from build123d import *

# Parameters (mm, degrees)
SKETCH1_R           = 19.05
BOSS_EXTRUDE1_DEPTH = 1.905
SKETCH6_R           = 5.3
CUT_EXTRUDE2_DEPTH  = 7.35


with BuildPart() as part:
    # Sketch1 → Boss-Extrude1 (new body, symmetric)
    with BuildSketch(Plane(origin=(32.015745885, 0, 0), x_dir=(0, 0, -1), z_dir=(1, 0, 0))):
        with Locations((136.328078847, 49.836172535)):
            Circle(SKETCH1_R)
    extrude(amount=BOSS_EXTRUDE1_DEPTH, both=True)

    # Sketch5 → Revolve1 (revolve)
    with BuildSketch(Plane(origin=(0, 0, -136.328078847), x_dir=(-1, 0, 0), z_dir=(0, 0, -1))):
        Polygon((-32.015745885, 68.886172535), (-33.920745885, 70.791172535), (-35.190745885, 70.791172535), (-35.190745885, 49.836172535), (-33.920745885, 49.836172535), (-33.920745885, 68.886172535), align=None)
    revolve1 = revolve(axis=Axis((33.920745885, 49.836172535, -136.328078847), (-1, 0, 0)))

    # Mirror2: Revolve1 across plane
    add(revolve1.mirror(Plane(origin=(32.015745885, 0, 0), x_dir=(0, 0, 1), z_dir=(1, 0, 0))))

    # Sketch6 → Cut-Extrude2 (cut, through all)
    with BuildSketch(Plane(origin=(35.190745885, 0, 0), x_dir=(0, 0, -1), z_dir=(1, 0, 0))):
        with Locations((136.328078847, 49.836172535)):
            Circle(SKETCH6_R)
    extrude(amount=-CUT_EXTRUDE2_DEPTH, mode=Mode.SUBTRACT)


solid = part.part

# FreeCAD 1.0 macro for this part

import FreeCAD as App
import Part
import Sketcher

V = App.Vector
Q = App.Units.Quantity


def add_polygon(sketch, points):
    """Adds a closed chain of lines whose ends are joined by coincident constraints."""
    first, n = sketch.GeometryCount, len(points)
    for a, b in zip(points, points[1:] + points[:1]):
        sketch.addGeometry(Part.LineSegment(App.Vector(*a, 0), App.Vector(*b, 0)), False)
    for i in range(n):
        sketch.addConstraint(Sketcher.Constraint("Coincident", first + i, 2, first + (i + 1) % n, 1))

doc = App.newDocument("Part")
body = doc.addObject("PartDesign::Body", "Body")

sketch1 = body.newObject("Sketcher::SketchObject", "Sketch")
sketch1.AttachmentSupport = (doc.getObject("YZ_Plane"), [""])
sketch1.MapMode = "FlatFace"
sketch1.AttachmentOffset = App.Placement(V(0, 0, 32.015746), App.Rotation())
sketch1.addGeometry(Part.Circle(V(50, -136, 0), V(0, 0, 1), 19), False)
sketch1.addConstraint(Sketcher.Constraint("Diameter", 0, Q("1.5 in")))
sketch1.addConstraint(Sketcher.Constraint("DistanceY", 0, 3, -1, 1, Q("136.328079 mm")))
sketch1.addConstraint(Sketcher.Constraint("DistanceX", -1, 1, 0, 3, Q("49.836173 mm")))
pad1 = body.newObject("PartDesign::Pad", "Pad")
pad1.Profile = sketch1
pad1.Length = Q("0.15 in")
pad1.Midplane = True

sketch2 = body.newObject("Sketcher::SketchObject", "Sketch001")
sketch2.AttachmentSupport = (doc.getObject("XY_Plane"), [""])
sketch2.MapMode = "FlatFace"
sketch2.AttachmentOffset = App.Placement(V(0, 0, -136.328079), App.Rotation())
add_polygon(sketch2, [(32, 68.9), (33.9, 70.8), (35.2, 70.8), (35.2, 49.8), (33.9, 49.8), (33.9, 68.9)])
sketch2.addGeometry(Part.LineSegment(V(35.2, 49.8, 0), V(32, 49.8, 0)), True)
sketch2.addConstraint(Sketcher.Constraint("Horizontal", 1))
sketch2.addConstraint(Sketcher.Constraint("Vertical", 2))
sketch2.addConstraint(Sketcher.Constraint("Horizontal", 3))
sketch2.addConstraint(Sketcher.Constraint("Vertical", 4))
sketch2.addConstraint(Sketcher.Constraint("Horizontal", 5))
sketch2.addConstraint(Sketcher.Constraint("Horizontal", 6))
sketch2.addConstraint(Sketcher.Constraint("Coincident", 6, 1, 2, 2))
sketch2.addConstraint(Sketcher.Constraint("Vertical", 0, 2, 3, 2))
sketch2.addConstraint(Sketcher.Constraint("Vertical", 5, 2, 6, 2))
sketch2.addConstraint(Sketcher.Constraint("Angle", 0, Q("45 deg")))
sketch2.addConstraint(Sketcher.Constraint("DistanceX", 1, 1, 1, 2, Q("0.05 in")))
sketch2.addConstraint(Sketcher.Constraint("DistanceY", 4, 1, 4, 2, Q("0.75 in")))
sketch2.addConstraint(Sketcher.Constraint("DistanceX", 5, 2, 5, 1, Q("0.075 in")))
sketch2.addConstraint(Sketcher.Constraint("DistanceX", -1, 1, 0, 2, Q("33.920746 mm")))
sketch2.addConstraint(Sketcher.Constraint("DistanceY", -1, 1, 0, 2, Q("70.791173 mm")))
revolution = body.newObject("PartDesign::Revolution", "Revolution")
revolution.Profile = sketch2
revolution.ReferenceAxis = (sketch2, ["Axis0"])
revolution.Angle = 360
doc.recompute()

datumplane = body.newObject("PartDesign::Plane", "DatumPlane")
datumplane.AttachmentSupport = (doc.getObject("YZ_Plane"), [""])
datumplane.MapMode = "FlatFace"
datumplane.AttachmentOffset = App.Placement(V(0, 0, 32.015746), App.Rotation())
mirrored = body.newObject("PartDesign::Mirrored", "Mirrored")
mirrored.Originals = [revolution]
mirrored.MirrorPlane = (datumplane, [""])
body.Tip = mirrored

sketch3 = body.newObject("Sketcher::SketchObject", "Sketch002")
sketch3.AttachmentSupport = (doc.getObject("YZ_Plane"), [""])
sketch3.MapMode = "FlatFace"
sketch3.AttachmentOffset = App.Placement(V(0, 0, 35.190746), App.Rotation())
sketch3.addGeometry(Part.Circle(V(50, -136, 0), V(0, 0, 1), 5), False)
sketch3.addConstraint(Sketcher.Constraint("Diameter", 0, Q("10.6 mm")))
sketch3.addConstraint(Sketcher.Constraint("DistanceY", 0, 3, -1, 1, Q("136.328079 mm")))
sketch3.addConstraint(Sketcher.Constraint("DistanceX", -1, 1, 0, 3, Q("49.836173 mm")))
pocket1 = body.newObject("PartDesign::Pocket", "Pocket")
pocket1.Profile = sketch3
pocket1.Type = "ThroughAll"

doc.recompute()
